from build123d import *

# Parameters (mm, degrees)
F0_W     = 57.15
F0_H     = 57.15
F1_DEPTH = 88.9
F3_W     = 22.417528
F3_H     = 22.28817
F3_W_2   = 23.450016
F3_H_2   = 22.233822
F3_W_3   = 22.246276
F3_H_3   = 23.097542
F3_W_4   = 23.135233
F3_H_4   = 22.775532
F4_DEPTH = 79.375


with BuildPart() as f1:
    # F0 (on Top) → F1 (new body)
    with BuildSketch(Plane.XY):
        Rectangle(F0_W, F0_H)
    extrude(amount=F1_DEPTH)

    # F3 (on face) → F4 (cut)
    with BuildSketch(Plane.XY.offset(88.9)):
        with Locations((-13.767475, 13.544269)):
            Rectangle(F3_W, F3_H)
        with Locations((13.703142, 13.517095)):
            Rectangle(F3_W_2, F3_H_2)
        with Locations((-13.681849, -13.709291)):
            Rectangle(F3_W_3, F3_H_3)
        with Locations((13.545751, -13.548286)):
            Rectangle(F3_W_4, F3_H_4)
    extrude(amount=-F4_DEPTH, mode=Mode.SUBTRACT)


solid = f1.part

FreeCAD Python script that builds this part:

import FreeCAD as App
import Part
import Sketcher

V = App.Vector
Q = App.Units.Quantity

doc = App.newDocument("Part")
params = doc.addObject("Spreadsheet::Sheet", "Params")
for row, (alias, value) in enumerate([
    ("sketch1_width", "2.25 in"),
    ("pad1_length", "3.5 in"),
    ("pocket1_length", "3.125 in"),
], start=1):
    params.set(f"A{row}", alias)
    params.set(f"B{row}", "=" + value)
    params.setAlias(f"B{row}", alias)

body = doc.addObject("PartDesign::Body", "Body")

# Sketch on XY plane
sketch1 = body.newObject("Sketcher::SketchObject", "Sketch")
sketch1.AttachmentSupport = (doc.getObject("XY_Plane"), [""])
sketch1.MapMode = "FlatFace"
sketch1.addGeometry(Part.LineSegment(V(-29, 29, 0), V(-29, -29, 0)), False)
sketch1.addGeometry(Part.LineSegment(V(-29, -29, 0), V(29, -29, 0)), False)
sketch1.addGeometry(Part.LineSegment(V(29, -29, 0), V(29, 29, 0)), False)
sketch1.addGeometry(Part.LineSegment(V(29, 29, 0), V(-29, 29, 0)), False)
sketch1.addConstraint(Sketcher.Constraint("Coincident", 0, 2, 1, 1))
sketch1.addConstraint(Sketcher.Constraint("Coincident", 1, 2, 2, 1))
sketch1.addConstraint(Sketcher.Constraint("Coincident", 2, 2, 3, 1))
sketch1.addConstraint(Sketcher.Constraint("Coincident", 3, 2, 0, 1))
sketch1.addConstraint(Sketcher.Constraint("Vertical", 0))
sketch1.addConstraint(Sketcher.Constraint("Horizontal", 1))
sketch1.addConstraint(Sketcher.Constraint("Vertical", 2))
sketch1.addConstraint(Sketcher.Constraint("Horizontal", 3))
sketch1.addConstraint(Sketcher.Constraint("Symmetric", 0, 2, 2, 2, -1, 1))
sketch1.addConstraint(Sketcher.Constraint("Equal", 3, 0))
sketch1.addConstraint(Sketcher.Constraint("DistanceX", 1, 1, 1, 2, Q("2.25 in")))
sketch1.setExpression("Constraints[10]", "Params.sketch1_width")
pad1 = body.newObject("PartDesign::Pad", "Pad")
pad1.Profile = sketch1
pad1.setExpression("Length", "Params.pad1_length")

# Sketch on XY plane
sketch2 = body.newObject("Sketcher::SketchObject", "Sketch001")
sketch2.AttachmentSupport = (doc.getObject("XY_Plane"), [""])
sketch2.MapMode = "FlatFace"
sketch2.AttachmentOffset = App.Placement(V(0, 0, 3.5 * 25.4), App.Rotation())
sketch2.addGeometry(Part.LineSegment(V(-25, 25, 0), V(-25, 2, 0)), False)
sketch2.addGeometry(Part.LineSegment(V(-25, 2, 0), V(-3, 2, 0)), False)
sketch2.addGeometry(Part.LineSegment(V(-3, 2, 0), V(-3, 25, 0)), False)
sketch2.addGeometry(Part.LineSegment(V(-3, 25, 0), V(-25, 25, 0)), False)
sketch2.addGeometry(Part.LineSegment(V(2, 25, 0), V(2, 2, 0)), False)
sketch2.addGeometry(Part.LineSegment(V(2, 2, 0), V(25, 2, 0)), False)
sketch2.addGeometry(Part.LineSegment(V(25, 2, 0), V(25, 25, 0)), False)
sketch2.addGeometry(Part.LineSegment(V(25, 25, 0), V(2, 25, 0)), False)
sketch2.addGeometry(Part.LineSegment(V(-25, -2, 0), V(-25, -25, 0)), False)
sketch2.addGeometry(Part.LineSegment(V(-25, -25, 0), V(-3, -25, 0)), False)
sketch2.addGeometry(Part.LineSegment(V(-3, -25, 0), V(-3, -2, 0)), False)
sketch2.addGeometry(Part.LineSegment(V(-3, -2, 0), V(-25, -2, 0)), False)
sketch2.addGeometry(Part.LineSegment(V(2, -2, 0), V(2, -25, 0)), False)
sketch2.addGeometry(Part.LineSegment(V(2, -25, 0), V(25, -25, 0)), False)
sketch2.addGeometry(Part.LineSegment(V(25, -25, 0), V(25, -2, 0)), False)
sketch2.addGeometry(Part.LineSegment(V(25, -2, 0), V(2, -2, 0)), False)
sketch2.addConstraint(Sketcher.Constraint("Coincident", 0, 2, 1, 1))
sketch2.addConstraint(Sketcher.Constraint("Coincident", 1, 2, 2, 1))
sketch2.addConstraint(Sketcher.Constraint("Coincident", 2, 2, 3, 1))
sketch2.addConstraint(Sketcher.Constraint("Coincident", 3, 2, 0, 1))
sketch2.addConstraint(Sketcher.Constraint("Coincident", 4, 2, 5, 1))
sketch2.addConstraint(Sketcher.Constraint("Coincident", 5, 2, 6, 1))
sketch2.addConstraint(Sketcher.Constraint("Coincident", 6, 2, 7, 1))
sketch2.addConstraint(Sketcher.Constraint("Coincident", 7, 2, 4, 1))
sketch2.addConstraint(Sketcher.Constraint("Coincident", 8, 2, 9, 1))
sketch2.addConstraint(Sketcher.Constraint("Coincident", 9, 2, 10, 1))
sketch2.addConstraint(Sketcher.Constraint("Coincident", 10, 2, 11, 1))
sketch2.addConstraint(Sketcher.Constraint("Coincident", 11, 2, 8, 1))
sketch2.addConstraint(Sketcher.Constraint("Coincident", 12, 2, 13, 1))
sketch2.addConstraint(Sketcher.Constraint("Coincident", 13, 2, 14, 1))
sketch2.addConstraint(Sketcher.Constraint("Coincident", 14, 2, 15, 1))
sketch2.addConstraint(Sketcher.Constraint("Coincident", 15, 2, 12, 1))
sketch2.addConstraint(Sketcher.Constraint("Vertical", 0))
sketch2.addConstraint(Sketcher.Constraint("Horizontal", 1))
sketch2.addConstraint(Sketcher.Constraint("Vertical", 2))
sketch2.addConstraint(Sketcher.Constraint("Horizontal", 3))
sketch2.addConstraint(Sketcher.Constraint("Vertical", 4))
sketch2.addConstraint(Sketcher.Constraint("Horizontal", 5))
sketch2.addConstraint(Sketcher.Constraint("Vertical", 6))
sketch2.addConstraint(Sketcher.Constraint("Horizontal", 7))
sketch2.addConstraint(Sketcher.Constraint("Vertical", 8))
sketch2.addConstraint(Sketcher.Constraint("Horizontal", 9))
sketch2.addConstraint(Sketcher.Constraint("Vertical", 10))
sketch2.addConstraint(Sketcher.Constraint("Horizontal", 11))
sketch2.addConstraint(Sketcher.Constraint("Vertical", 12))
sketch2.addConstraint(Sketcher.Constraint("Horizontal", 13))
sketch2.addConstraint(Sketcher.Constraint("Vertical", 14))
sketch2.addConstraint(Sketcher.Constraint("Horizontal", 15))
sketch2.addConstraint(Sketcher.Constraint("Horizontal", 1, 2, 4, 2))
sketch2.addConstraint(Sketcher.Constraint("Horizontal", 11, 2, 14, 2))
sketch2.addConstraint(Sketcher.Constraint("Vertical", 2, 2, 9, 2))
sketch2.addConstraint(Sketcher.Constraint("Vertical", 7, 2, 12, 2))
sketch2.addConstraint(Sketcher.Constraint("DistanceX", 1, 1, 1, 2, 22.417528))
sketch2.addConstraint(Sketcher.Constraint("DistanceY", 0, 2, 0, 1, 22.28817))
sketch2.addConstraint(Sketcher.Constraint("DistanceY", 4, 2, 4, 1, 22.233822))
sketch2.addConstraint(Sketcher.Constraint("DistanceY", 8, 2, 8, 1, 23.097542))
sketch2.addConstraint(Sketcher.Constraint("DistanceY", 12, 2, 12, 1, 22.775532))
sketch2.addConstraint(Sketcher.Constraint("DistanceX", 5, 1, 5, 2, 23.450016))
sketch2.addConstraint(Sketcher.Constraint("DistanceX", 9, 1, 9, 2, 22.246276))
sketch2.addConstraint(Sketcher.Constraint("DistanceX", 13, 1, 13, 2, 23.135233))
sketch2.addConstraint(Sketcher.Constraint("DistanceX", 0, 2, -1, 1, 24.976239))
sketch2.addConstraint(Sketcher.Constraint("DistanceX", -1, 1, 5, 2, 25.42815))
sketch2.addConstraint(Sketcher.Constraint("DistanceY", 8, 2, -1, 1, 25.258062))
sketch2.addConstraint(Sketcher.Constraint("DistanceY", -1, 1, 0, 2, 2.400184))
pocket1 = body.newObject("PartDesign::Pocket", "Pocket")
pocket1.Profile = sketch2
pocket1.setExpression("Length", "Params.pocket1_length")

doc.recompute()
